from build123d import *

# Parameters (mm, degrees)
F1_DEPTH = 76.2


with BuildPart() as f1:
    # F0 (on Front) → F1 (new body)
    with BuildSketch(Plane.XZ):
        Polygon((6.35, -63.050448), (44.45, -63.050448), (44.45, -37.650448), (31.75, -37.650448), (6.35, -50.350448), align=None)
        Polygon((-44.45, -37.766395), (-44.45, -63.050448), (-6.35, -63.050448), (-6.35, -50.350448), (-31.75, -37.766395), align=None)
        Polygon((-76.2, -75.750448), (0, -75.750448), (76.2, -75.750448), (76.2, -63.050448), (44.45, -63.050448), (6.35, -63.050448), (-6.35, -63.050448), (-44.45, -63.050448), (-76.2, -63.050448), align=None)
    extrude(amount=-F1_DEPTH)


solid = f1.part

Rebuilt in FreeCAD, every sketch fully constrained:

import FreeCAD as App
import Part
import Sketcher

V = App.Vector
Q = App.Units.Quantity


def add_polygon(sketch, points):
    """Adds a closed chain of lines whose ends are joined by coincident constraints."""
    first, n = sketch.GeometryCount, len(points)
    for a, b in zip(points, points[1:] + points[:1]):
        sketch.addGeometry(Part.LineSegment(App.Vector(*a, 0), App.Vector(*b, 0)), False)
    for i in range(n):
        sketch.addConstraint(Sketcher.Constraint("Coincident", first + i, 2, first + (i + 1) % n, 1))

doc = App.newDocument("Part")
body = doc.addObject("PartDesign::Body", "Body")

sketch1 = doc.addObject("Sketcher::SketchObject", "Sketch")
body.addObject(sketch1)
sketch1.AttachmentSupport = (doc.XZ_Plane, [""])
sketch1.MapMode = "FlatFace"
add_polygon(sketch1, [(44, -63), (44, -38), (32, -38), (6, -50), (6, -63), (-6, -63), (-6, -50), (-32, -38), (-44, -38), (-44, -63), (-76, -63), (-76, -76), (76, -76), (76, -63)])
sketch1.addConstraint([
    Sketcher.Constraint("Vertical", 0),
    Sketcher.Constraint("Horizontal", 1),
    Sketcher.Constraint("Vertical", 3),
    Sketcher.Constraint("Horizontal", 4),
    Sketcher.Constraint("Vertical", 5),
    Sketcher.Constraint("Horizontal", 7),
    Sketcher.Constraint("Vertical", 8),
    Sketcher.Constraint("Horizontal", 9),
    Sketcher.Constraint("Vertical", 10),
    Sketcher.Constraint("Horizontal", 11),
    Sketcher.Constraint("Vertical", 12),
    Sketcher.Constraint("Horizontal", 13),
    Sketcher.Constraint("Symmetric", 2, 2, 5, 2, -2),
    Sketcher.Constraint("Symmetric", 9, 2, 12, 2, -2),
    Sketcher.Constraint("Horizontal", 4, 2, 8, 2),
    Sketcher.Constraint("Equal", 1, 4),
    Sketcher.Constraint("Equal", 4, 7),
    Sketcher.Constraint("Equal", 9, 13),
    Sketcher.Constraint("Equal", 7, 3),
    Sketcher.Constraint("Equal", 5, 10),
    Sketcher.Constraint("DistanceX", 11, 1, 11, 2, Q("6 in")),
    Sketcher.Constraint("DistanceY", 0, 1, 0, 2, Q("1 in")),
    Sketcher.Constraint("DistanceX", 1, 2, 1, 1, Q("0.5 in")),
    Sketcher.Constraint("DistanceX", 2, 2, 1, 2, Q("1 in")),
    Sketcher.Constraint("Distance", 6, Q("1.116 in")),
    Sketcher.Constraint("DistanceY", 3, 2, -1, 1, 63.050448),
])
pad1 = doc.addObject("PartDesign::Pad", "Pad")
body.addObject(pad1)
pad1.Profile = sketch1
pad1.Length = Q("3 in")
pad1.Reversed = True

doc.recompute()
